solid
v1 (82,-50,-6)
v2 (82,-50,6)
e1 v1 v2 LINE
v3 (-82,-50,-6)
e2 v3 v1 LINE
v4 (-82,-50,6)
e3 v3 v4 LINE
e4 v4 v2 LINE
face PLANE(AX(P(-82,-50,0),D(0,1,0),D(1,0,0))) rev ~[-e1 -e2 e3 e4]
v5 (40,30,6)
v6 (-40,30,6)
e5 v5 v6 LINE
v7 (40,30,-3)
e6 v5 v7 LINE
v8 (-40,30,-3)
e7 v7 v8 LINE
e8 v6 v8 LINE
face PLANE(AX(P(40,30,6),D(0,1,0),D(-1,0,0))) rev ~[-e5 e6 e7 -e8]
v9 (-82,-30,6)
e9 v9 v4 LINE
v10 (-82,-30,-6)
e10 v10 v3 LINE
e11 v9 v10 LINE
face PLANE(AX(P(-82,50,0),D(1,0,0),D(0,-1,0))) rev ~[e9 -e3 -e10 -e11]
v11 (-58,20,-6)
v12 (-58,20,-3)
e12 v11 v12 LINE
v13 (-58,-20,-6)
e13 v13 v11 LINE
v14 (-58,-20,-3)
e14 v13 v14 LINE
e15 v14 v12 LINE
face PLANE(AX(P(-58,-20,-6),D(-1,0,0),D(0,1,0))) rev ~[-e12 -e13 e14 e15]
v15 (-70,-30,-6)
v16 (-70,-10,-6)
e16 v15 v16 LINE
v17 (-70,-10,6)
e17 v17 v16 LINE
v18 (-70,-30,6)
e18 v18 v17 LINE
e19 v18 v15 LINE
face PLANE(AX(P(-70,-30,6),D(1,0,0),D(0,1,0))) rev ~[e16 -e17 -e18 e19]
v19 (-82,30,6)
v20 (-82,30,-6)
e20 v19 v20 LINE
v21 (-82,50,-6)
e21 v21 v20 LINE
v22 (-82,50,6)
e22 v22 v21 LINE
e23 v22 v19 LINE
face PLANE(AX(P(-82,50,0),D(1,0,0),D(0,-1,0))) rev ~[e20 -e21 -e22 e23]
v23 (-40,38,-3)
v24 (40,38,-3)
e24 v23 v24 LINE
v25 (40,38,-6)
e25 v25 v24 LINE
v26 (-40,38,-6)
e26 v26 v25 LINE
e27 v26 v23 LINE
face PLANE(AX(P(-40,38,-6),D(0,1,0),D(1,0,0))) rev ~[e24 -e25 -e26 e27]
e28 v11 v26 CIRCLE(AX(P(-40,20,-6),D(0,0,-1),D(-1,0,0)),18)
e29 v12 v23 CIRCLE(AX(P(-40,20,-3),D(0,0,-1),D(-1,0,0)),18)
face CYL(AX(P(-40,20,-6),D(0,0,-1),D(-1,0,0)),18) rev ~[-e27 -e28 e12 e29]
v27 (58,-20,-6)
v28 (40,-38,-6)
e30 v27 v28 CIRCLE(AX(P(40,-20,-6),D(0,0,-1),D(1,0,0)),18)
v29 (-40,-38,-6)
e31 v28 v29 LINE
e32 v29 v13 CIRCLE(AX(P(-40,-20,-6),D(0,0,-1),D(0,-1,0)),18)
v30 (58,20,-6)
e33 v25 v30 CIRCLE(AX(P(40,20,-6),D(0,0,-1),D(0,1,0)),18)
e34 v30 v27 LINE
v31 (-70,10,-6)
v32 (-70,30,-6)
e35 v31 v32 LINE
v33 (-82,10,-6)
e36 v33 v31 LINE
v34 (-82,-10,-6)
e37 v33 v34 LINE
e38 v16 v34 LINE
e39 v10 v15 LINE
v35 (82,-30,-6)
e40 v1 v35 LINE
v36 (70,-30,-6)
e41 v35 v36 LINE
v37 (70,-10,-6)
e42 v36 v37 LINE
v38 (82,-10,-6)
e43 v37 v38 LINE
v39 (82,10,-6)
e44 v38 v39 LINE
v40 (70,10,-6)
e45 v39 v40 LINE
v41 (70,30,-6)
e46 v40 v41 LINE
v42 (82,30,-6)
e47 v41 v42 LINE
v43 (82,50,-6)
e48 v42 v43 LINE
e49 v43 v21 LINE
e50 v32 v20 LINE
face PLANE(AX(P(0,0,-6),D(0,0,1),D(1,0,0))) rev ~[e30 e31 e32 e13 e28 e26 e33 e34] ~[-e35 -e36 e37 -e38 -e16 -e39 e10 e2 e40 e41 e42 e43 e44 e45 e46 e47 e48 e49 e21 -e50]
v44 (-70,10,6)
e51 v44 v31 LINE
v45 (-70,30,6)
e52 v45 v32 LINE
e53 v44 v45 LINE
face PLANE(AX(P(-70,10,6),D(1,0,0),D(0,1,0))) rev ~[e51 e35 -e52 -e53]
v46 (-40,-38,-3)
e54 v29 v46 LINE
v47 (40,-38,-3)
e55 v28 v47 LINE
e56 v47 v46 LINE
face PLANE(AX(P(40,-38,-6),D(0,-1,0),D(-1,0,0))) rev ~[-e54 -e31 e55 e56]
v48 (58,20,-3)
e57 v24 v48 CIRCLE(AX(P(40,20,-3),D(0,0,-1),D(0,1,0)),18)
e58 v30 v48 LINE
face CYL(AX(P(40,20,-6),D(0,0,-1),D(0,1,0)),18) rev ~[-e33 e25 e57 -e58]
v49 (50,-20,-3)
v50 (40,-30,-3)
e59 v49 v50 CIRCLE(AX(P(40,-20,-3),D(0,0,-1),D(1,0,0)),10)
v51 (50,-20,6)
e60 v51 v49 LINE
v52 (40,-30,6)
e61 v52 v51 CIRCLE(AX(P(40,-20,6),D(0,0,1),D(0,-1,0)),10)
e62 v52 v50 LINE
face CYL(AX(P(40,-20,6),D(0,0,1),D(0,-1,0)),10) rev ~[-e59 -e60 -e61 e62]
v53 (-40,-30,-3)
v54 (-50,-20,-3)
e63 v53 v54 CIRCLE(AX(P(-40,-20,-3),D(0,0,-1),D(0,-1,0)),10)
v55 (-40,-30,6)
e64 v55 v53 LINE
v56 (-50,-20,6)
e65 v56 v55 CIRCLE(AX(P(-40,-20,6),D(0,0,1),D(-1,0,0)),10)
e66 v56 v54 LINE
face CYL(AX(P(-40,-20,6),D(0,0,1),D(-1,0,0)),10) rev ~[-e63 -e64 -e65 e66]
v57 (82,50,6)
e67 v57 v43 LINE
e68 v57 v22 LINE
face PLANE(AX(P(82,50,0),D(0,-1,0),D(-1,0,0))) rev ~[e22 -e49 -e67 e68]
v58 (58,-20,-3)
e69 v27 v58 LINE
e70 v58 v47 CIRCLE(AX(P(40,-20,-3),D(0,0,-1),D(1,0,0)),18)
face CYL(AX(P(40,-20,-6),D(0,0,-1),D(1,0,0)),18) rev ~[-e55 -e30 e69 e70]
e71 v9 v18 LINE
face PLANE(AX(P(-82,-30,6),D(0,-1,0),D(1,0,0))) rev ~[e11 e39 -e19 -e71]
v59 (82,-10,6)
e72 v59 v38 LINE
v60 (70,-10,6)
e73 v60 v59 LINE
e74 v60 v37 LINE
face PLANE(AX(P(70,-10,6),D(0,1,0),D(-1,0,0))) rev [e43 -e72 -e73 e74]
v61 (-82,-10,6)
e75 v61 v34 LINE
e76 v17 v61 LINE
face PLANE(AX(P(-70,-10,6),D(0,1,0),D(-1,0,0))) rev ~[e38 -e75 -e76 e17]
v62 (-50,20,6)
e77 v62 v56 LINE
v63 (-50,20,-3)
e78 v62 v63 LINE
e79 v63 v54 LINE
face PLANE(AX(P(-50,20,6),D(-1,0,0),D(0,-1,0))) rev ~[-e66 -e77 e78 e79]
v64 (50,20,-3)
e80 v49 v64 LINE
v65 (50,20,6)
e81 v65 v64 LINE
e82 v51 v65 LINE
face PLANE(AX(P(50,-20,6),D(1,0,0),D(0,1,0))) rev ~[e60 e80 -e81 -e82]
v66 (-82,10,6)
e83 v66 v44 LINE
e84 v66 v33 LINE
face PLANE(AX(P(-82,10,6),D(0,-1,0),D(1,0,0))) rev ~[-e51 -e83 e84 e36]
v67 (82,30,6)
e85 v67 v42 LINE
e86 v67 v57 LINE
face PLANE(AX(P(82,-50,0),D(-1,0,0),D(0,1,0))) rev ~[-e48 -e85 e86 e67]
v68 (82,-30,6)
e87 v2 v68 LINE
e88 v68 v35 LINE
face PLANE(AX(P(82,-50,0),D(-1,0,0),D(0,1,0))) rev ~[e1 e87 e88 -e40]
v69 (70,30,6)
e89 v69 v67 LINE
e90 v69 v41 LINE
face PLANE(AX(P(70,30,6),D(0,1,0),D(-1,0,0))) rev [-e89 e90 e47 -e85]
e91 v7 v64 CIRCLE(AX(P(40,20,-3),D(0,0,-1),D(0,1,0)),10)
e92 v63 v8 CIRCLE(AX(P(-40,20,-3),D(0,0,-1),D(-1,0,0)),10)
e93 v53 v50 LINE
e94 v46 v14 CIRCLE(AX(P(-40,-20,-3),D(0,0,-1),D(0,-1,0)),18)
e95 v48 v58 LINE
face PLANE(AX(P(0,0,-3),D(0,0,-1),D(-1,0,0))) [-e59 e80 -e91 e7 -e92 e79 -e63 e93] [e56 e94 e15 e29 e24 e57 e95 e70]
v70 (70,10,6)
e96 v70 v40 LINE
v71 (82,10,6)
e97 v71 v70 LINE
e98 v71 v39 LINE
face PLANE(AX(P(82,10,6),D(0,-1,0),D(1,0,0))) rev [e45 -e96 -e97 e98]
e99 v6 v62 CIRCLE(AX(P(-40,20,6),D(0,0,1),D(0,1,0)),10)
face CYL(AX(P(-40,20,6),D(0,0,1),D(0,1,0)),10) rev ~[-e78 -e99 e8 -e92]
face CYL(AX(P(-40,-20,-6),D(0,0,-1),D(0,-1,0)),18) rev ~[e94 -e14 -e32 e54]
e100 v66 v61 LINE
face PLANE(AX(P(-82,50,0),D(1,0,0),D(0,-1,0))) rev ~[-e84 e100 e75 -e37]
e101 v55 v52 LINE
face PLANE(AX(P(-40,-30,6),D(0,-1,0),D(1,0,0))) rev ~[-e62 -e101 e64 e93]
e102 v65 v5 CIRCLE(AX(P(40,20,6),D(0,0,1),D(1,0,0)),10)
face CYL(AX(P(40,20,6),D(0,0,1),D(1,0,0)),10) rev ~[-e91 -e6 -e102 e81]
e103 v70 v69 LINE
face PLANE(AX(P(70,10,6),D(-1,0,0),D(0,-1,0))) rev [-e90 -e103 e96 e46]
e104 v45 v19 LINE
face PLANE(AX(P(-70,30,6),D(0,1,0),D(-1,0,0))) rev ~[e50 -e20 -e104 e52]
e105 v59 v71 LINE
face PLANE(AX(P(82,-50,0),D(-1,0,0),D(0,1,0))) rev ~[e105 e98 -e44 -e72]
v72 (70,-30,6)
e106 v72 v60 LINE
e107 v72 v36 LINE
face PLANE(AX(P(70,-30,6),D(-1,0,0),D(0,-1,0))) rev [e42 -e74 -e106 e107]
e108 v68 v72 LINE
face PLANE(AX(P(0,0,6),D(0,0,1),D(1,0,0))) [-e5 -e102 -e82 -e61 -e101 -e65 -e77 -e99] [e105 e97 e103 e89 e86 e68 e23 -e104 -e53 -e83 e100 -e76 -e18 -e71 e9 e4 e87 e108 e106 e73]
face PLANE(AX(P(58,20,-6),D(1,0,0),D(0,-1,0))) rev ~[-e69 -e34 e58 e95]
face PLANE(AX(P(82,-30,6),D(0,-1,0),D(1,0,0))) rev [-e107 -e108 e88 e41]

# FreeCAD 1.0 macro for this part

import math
import FreeCAD as App
import Part
import Sketcher


def add_polygon(sketch, points):
    """Adds a closed chain of lines whose ends are joined by coincident constraints."""
    first, n = sketch.GeometryCount, len(points)
    for a, b in zip(points, points[1:] + points[:1]):
        sketch.addGeometry(Part.LineSegment(App.Vector(*a, 0), App.Vector(*b, 0)), False)
    for i in range(n):
        sketch.addConstraint(Sketcher.Constraint("Coincident", first + i, 2, first + (i + 1) % n, 1))

doc = App.newDocument("Part")
body = doc.addObject("PartDesign::Body", "Body")

# Sketch on XY plane
sketch1 = body.newObject("Sketcher::SketchObject", "Sketch")
sketch1.AttachmentSupport = (doc.getObject("XY_Plane"), [""])
sketch1.MapMode = "FlatFace"
add_polygon(sketch1, [(-82, 50), (-82, -50), (82, -50), (82, 50)])  # lines 0-3
sketch1.addConstraint([
    Sketcher.Constraint("Vertical", 0),
    Sketcher.Constraint("Horizontal", 1),
    Sketcher.Constraint("Vertical", 2),
    Sketcher.Constraint("Horizontal", 3),
    Sketcher.Constraint("Symmetric", 0, 2, 2, 2, -1, 1),
    Sketcher.Constraint("DistanceX", 1, 1, 1, 2, 164.0),
    Sketcher.Constraint("DistanceY", 0, 2, 0, 1, 100.0),
])
pad1 = body.newObject("PartDesign::Pad", "Pad")
pad1.Profile = sketch1
pad1.Length = 12
pad1.Midplane = True

# Sketch on XY plane
sketch2 = body.newObject("Sketcher::SketchObject", "Sketch001")
sketch2.AttachmentSupport = (doc.getObject("XY_Plane"), [""])
sketch2.MapMode = "FlatFace"
sketch2.AttachmentOffset = App.Placement(App.Vector(0, 0, 6), App.Rotation())
add_polygon(sketch2, [(-70, 30), (-82, 30), (-82, 10), (-70, 10)])  # lines 0-3
add_polygon(sketch2, [(-70, -10), (-82, -10), (-82, -30), (-70, -30)])  # lines 4-7
sketch2.addConstraint([
    Sketcher.Constraint("Horizontal", 0),
    Sketcher.Constraint("Vertical", 1),
    Sketcher.Constraint("Horizontal", 2),
    Sketcher.Constraint("Vertical", 3),
    Sketcher.Constraint("Horizontal", 4),
    Sketcher.Constraint("Vertical", 5),
    Sketcher.Constraint("Horizontal", 6),
    Sketcher.Constraint("Vertical", 7),
    Sketcher.Constraint("Symmetric", 1, 2, 4, 2, -1),
    Sketcher.Constraint("Symmetric", 3, 2, 6, 2, -1),
    Sketcher.Constraint("DistanceX", 0, 2, 0, 1, 12.0),
    Sketcher.Constraint("DistanceY", 1, 2, 1, 1, 20.0),
    Sketcher.Constraint("DistanceY", 4, 2, 1, 2, 20.0),
    Sketcher.Constraint("DistanceX", 0, 2, -1, 1, 82.0),
])
pocket1 = body.newObject("PartDesign::Pocket", "Pocket")
pocket1.Profile = sketch2
pocket1.Type = "ThroughAll"
doc.recompute()

mirrored = body.newObject("PartDesign::Mirrored", "Mirrored")
mirrored.Originals = [pocket1]
mirrored.MirrorPlane = (doc.getObject("YZ_Plane"), [""])
body.Tip = mirrored

# Sketch on XY plane
sketch3 = body.newObject("Sketcher::SketchObject", "Sketch002")
sketch3.AttachmentSupport = (doc.getObject("XY_Plane"), [""])
sketch3.MapMode = "FlatFace"
sketch3.AttachmentOffset = App.Placement(App.Vector(0, 0, 6), App.Rotation())
sketch3.addGeometry([
    Part.ArcOfCircle(Part.Circle(App.Vector(-40, -20, 0), App.Vector(0, 0, 1), 10), math.radians(180), math.radians(270)),  # 0
    Part.LineSegment(App.Vector(-40, -30, 0), App.Vector(40, -30, 0)),  # 1
    Part.ArcOfCircle(Part.Circle(App.Vector(40, -20, 0), App.Vector(0, 0, 1), 10), math.radians(-90), math.radians(0)),  # 2
    Part.LineSegment(App.Vector(50, -20, 0), App.Vector(50, 20, 0)),  # 3
    Part.ArcOfCircle(Part.Circle(App.Vector(40, 20, 0), App.Vector(0, 0, 1), 10), math.radians(0), math.radians(90)),  # 4
    Part.LineSegment(App.Vector(40, 30, 0), App.Vector(-40, 30, 0)),  # 5
    Part.ArcOfCircle(Part.Circle(App.Vector(-40, 20, 0), App.Vector(0, 0, 1), 10), math.radians(90), math.radians(180)),  # 6
    Part.LineSegment(App.Vector(-50, 20, 0), App.Vector(-50, -20, 0)),  # 7
], False)
sketch3.addConstraint([
    Sketcher.Constraint("Tangent", 0, 2, 1, 1),
    Sketcher.Constraint("Tangent", 1, 2, 2, 1),
    Sketcher.Constraint("Tangent", 2, 2, 3, 1),
    Sketcher.Constraint("Tangent", 3, 2, 4, 1),
    Sketcher.Constraint("Tangent", 4, 2, 5, 1),
    Sketcher.Constraint("Tangent", 5, 2, 6, 1),
    Sketcher.Constraint("Tangent", 6, 2, 7, 1),
    Sketcher.Constraint("Tangent", 7, 2, 0, 1),
    Sketcher.Constraint("Horizontal", 1),
    Sketcher.Constraint("Vertical", 3),
    Sketcher.Constraint("Horizontal", 5),
    Sketcher.Constraint("Vertical", 7),
    Sketcher.Constraint("Equal", 0, 2),
    Sketcher.Constraint("Equal", 2, 4),
    Sketcher.Constraint("Equal", 4, 6),
    Sketcher.Constraint("Symmetric", 0, 3, 4, 3, -1, 1),
    Sketcher.Constraint("Radius", 0, 10.0),
    Sketcher.Constraint("DistanceY", 1, 2, 4, 2, 60.0),
    Sketcher.Constraint("DistanceX", 1, 1, 1, 2, 80.0),
])
pocket2 = body.newObject("PartDesign::Pocket", "Pocket001")
pocket2.Profile = sketch3
pocket2.Type = "ThroughAll"

# Sketch on XY plane
sketch4 = body.newObject("Sketcher::SketchObject", "Sketch003")
sketch4.AttachmentSupport = (doc.getObject("XY_Plane"), [""])
sketch4.MapMode = "FlatFace"
sketch4.AttachmentOffset = App.Placement(App.Vector(0, 0, -6), App.Rotation())
sketch4.addGeometry([
    Part.ArcOfCircle(Part.Circle(App.Vector(-40, 20, 0), App.Vector(0, 0, 1), 18), math.radians(90), math.radians(180)),  # 0
    Part.LineSegment(App.Vector(-40, 38, 0), App.Vector(40, 38, 0)),  # 1
    Part.ArcOfCircle(Part.Circle(App.Vector(40, 20, 0), App.Vector(0, 0, 1), 18), math.radians(0), math.radians(90)),  # 2
    Part.LineSegment(App.Vector(58, 20, 0), App.Vector(58, -20, 0)),  # 3
    Part.ArcOfCircle(Part.Circle(App.Vector(40, -20, 0), App.Vector(0, 0, 1), 18), math.radians(-90), math.radians(0)),  # 4
    Part.LineSegment(App.Vector(40, -38, 0), App.Vector(-40, -38, 0)),  # 5
    Part.ArcOfCircle(Part.Circle(App.Vector(-40, -20, 0), App.Vector(0, 0, 1), 18), math.radians(180), math.radians(270)),  # 6
    Part.LineSegment(App.Vector(-58, -20, 0), App.Vector(-58, 20, 0)),  # 7
    Part.ArcOfCircle(Part.Circle(App.Vector(40, 20, 0), App.Vector(0, 0, 1), 10), math.radians(0), math.radians(90)),  # 8
    Part.LineSegment(App.Vector(40, 30, 0), App.Vector(-40, 30, 0)),  # 9
    Part.ArcOfCircle(Part.Circle(App.Vector(-40, 20, 0), App.Vector(0, 0, 1), 10), math.radians(90), math.radians(180)),  # 10
    Part.LineSegment(App.Vector(-50, 20, 0), App.Vector(-50, -20, 0)),  # 11
    Part.ArcOfCircle(Part.Circle(App.Vector(-40, -20, 0), App.Vector(0, 0, 1), 10), math.radians(180), math.radians(270)),  # 12
    Part.LineSegment(App.Vector(-40, -30, 0), App.Vector(40, -30, 0)),  # 13
    Part.ArcOfCircle(Part.Circle(App.Vector(40, -20, 0), App.Vector(0, 0, 1), 10), math.radians(-90), math.radians(0)),  # 14
    Part.LineSegment(App.Vector(50, -20, 0), App.Vector(50, 20, 0)),  # 15
], False)
sketch4.addConstraint([
    Sketcher.Constraint("Tangent", 0, 1, 1, 1),
    Sketcher.Constraint("Tangent", 1, 2, 2, 2),
    Sketcher.Constraint("Tangent", 2, 1, 3, 1),
    Sketcher.Constraint("Tangent", 3, 2, 4, 2),
    Sketcher.Constraint("Tangent", 4, 1, 5, 1),
    Sketcher.Constraint("Tangent", 5, 2, 6, 2),
    Sketcher.Constraint("Tangent", 6, 1, 7, 1),
    Sketcher.Constraint("Tangent", 7, 2, 0, 2),
    Sketcher.Constraint("Tangent", 8, 2, 9, 1),
    Sketcher.Constraint("Tangent", 9, 2, 10, 1),
    Sketcher.Constraint("Tangent", 10, 2, 11, 1),
    Sketcher.Constraint("Tangent", 11, 2, 12, 1),
    Sketcher.Constraint("Tangent", 12, 2, 13, 1),
    Sketcher.Constraint("Tangent", 13, 2, 14, 1),
    Sketcher.Constraint("Tangent", 14, 2, 15, 1),
    Sketcher.Constraint("Tangent", 15, 2, 8, 1),
    Sketcher.Constraint("Horizontal", 1),
    Sketcher.Constraint("Vertical", 3),
    Sketcher.Constraint("Horizontal", 5),
    Sketcher.Constraint("Vertical", 7),
    Sketcher.Constraint("Horizontal", 9),
    Sketcher.Constraint("Vertical", 11),
    Sketcher.Constraint("Horizontal", 13),
    Sketcher.Constraint("Vertical", 15),
    Sketcher.Constraint("Coincident", 8, 3, 2, 3),
    Sketcher.Constraint("Coincident", 10, 3, 0, 3),
    Sketcher.Constraint("Coincident", 12, 3, 6, 3),
    Sketcher.Constraint("Equal", 0, 2),
    Sketcher.Constraint("Equal", 2, 4),
    Sketcher.Constraint("Equal", 4, 6),
    Sketcher.Constraint("Equal", 12, 14),
    Sketcher.Constraint("Symmetric", 0, 3, 4, 3, -1, 1),
    Sketcher.Constraint("Radius", 0, 18.0),
    Sketcher.Constraint("Radius", 8, 10.0),
    Sketcher.Constraint("DistanceX", 1, 1, 1, 2, 80.0),
    Sketcher.Constraint("DistanceY", 3, 2, 3, 1, 40.0),
])
pocket3 = body.newObject("PartDesign::Pocket", "Pocket002")
pocket3.Profile = sketch4
pocket3.Length = 3
pocket3.Reversed = True

doc.recompute()
